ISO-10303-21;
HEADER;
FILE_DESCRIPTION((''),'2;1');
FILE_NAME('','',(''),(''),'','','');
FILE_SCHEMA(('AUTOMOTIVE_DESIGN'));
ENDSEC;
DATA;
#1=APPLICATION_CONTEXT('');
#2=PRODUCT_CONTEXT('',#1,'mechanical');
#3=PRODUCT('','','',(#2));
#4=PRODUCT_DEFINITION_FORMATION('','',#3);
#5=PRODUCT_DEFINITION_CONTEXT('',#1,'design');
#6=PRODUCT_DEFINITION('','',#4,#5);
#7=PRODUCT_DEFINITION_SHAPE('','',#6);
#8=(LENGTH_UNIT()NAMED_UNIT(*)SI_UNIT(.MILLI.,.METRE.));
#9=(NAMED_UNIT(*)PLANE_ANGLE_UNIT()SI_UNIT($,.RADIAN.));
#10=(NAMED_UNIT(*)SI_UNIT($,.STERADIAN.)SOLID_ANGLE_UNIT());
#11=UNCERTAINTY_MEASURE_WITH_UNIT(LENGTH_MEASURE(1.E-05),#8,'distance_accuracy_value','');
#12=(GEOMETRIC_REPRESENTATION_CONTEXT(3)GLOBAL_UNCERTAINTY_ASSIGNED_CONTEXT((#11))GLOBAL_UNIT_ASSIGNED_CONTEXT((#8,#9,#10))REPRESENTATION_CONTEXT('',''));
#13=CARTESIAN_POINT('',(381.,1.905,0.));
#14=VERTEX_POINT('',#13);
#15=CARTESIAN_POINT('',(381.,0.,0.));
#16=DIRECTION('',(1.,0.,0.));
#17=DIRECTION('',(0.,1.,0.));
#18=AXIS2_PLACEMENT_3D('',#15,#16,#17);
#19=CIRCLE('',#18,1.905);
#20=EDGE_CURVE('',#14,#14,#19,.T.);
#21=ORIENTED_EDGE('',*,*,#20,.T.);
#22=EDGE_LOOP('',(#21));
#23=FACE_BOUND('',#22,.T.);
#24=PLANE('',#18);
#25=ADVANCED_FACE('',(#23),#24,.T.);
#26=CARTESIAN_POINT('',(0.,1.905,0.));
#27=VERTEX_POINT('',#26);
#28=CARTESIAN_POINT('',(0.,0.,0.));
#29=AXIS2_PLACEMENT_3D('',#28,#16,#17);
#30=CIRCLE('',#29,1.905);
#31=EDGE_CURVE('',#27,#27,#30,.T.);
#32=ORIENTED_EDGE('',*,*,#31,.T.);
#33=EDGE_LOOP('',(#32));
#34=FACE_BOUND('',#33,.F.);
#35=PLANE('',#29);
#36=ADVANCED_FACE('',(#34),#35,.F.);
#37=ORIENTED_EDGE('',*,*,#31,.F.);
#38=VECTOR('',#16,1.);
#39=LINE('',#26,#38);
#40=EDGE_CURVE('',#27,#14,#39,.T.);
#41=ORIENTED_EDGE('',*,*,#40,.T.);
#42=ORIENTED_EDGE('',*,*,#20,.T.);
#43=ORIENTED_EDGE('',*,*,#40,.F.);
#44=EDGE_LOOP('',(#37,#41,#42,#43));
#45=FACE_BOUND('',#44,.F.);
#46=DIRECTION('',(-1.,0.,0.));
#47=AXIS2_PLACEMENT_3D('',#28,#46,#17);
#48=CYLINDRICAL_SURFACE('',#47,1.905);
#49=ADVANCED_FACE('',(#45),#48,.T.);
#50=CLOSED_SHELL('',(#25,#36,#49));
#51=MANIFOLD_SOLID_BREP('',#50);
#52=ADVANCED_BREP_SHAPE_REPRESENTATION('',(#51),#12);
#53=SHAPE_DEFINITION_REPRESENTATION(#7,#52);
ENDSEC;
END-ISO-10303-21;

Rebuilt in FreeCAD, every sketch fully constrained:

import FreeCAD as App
import Part
import Sketcher
from FreeCAD import Vector
Q = App.Units.Quantity

doc = App.newDocument("Part")
body = doc.addObject("PartDesign::Body", "Body")

# Sketch on YZ plane
sketch1 = body.newObject("Sketcher::SketchObject", "Sketch")
sketch1.AttachmentSupport = (doc.getObject("YZ_Plane"), [""])
sketch1.MapMode = "FlatFace"
sketch1.addGeometry(Part.Circle(Vector(0, 0, 0), Vector(0, 0, 1), 1.905), False)
sketch1.addConstraint([
    Sketcher.Constraint("Coincident", 0, 3, -1, 1),
    Sketcher.Constraint("Diameter", 0, Q("0.15 in")),
])
pad1 = body.newObject("PartDesign::Pad", "Pad")
pad1.Profile = sketch1
pad1.Length = Q("15 in")

doc.recompute()
